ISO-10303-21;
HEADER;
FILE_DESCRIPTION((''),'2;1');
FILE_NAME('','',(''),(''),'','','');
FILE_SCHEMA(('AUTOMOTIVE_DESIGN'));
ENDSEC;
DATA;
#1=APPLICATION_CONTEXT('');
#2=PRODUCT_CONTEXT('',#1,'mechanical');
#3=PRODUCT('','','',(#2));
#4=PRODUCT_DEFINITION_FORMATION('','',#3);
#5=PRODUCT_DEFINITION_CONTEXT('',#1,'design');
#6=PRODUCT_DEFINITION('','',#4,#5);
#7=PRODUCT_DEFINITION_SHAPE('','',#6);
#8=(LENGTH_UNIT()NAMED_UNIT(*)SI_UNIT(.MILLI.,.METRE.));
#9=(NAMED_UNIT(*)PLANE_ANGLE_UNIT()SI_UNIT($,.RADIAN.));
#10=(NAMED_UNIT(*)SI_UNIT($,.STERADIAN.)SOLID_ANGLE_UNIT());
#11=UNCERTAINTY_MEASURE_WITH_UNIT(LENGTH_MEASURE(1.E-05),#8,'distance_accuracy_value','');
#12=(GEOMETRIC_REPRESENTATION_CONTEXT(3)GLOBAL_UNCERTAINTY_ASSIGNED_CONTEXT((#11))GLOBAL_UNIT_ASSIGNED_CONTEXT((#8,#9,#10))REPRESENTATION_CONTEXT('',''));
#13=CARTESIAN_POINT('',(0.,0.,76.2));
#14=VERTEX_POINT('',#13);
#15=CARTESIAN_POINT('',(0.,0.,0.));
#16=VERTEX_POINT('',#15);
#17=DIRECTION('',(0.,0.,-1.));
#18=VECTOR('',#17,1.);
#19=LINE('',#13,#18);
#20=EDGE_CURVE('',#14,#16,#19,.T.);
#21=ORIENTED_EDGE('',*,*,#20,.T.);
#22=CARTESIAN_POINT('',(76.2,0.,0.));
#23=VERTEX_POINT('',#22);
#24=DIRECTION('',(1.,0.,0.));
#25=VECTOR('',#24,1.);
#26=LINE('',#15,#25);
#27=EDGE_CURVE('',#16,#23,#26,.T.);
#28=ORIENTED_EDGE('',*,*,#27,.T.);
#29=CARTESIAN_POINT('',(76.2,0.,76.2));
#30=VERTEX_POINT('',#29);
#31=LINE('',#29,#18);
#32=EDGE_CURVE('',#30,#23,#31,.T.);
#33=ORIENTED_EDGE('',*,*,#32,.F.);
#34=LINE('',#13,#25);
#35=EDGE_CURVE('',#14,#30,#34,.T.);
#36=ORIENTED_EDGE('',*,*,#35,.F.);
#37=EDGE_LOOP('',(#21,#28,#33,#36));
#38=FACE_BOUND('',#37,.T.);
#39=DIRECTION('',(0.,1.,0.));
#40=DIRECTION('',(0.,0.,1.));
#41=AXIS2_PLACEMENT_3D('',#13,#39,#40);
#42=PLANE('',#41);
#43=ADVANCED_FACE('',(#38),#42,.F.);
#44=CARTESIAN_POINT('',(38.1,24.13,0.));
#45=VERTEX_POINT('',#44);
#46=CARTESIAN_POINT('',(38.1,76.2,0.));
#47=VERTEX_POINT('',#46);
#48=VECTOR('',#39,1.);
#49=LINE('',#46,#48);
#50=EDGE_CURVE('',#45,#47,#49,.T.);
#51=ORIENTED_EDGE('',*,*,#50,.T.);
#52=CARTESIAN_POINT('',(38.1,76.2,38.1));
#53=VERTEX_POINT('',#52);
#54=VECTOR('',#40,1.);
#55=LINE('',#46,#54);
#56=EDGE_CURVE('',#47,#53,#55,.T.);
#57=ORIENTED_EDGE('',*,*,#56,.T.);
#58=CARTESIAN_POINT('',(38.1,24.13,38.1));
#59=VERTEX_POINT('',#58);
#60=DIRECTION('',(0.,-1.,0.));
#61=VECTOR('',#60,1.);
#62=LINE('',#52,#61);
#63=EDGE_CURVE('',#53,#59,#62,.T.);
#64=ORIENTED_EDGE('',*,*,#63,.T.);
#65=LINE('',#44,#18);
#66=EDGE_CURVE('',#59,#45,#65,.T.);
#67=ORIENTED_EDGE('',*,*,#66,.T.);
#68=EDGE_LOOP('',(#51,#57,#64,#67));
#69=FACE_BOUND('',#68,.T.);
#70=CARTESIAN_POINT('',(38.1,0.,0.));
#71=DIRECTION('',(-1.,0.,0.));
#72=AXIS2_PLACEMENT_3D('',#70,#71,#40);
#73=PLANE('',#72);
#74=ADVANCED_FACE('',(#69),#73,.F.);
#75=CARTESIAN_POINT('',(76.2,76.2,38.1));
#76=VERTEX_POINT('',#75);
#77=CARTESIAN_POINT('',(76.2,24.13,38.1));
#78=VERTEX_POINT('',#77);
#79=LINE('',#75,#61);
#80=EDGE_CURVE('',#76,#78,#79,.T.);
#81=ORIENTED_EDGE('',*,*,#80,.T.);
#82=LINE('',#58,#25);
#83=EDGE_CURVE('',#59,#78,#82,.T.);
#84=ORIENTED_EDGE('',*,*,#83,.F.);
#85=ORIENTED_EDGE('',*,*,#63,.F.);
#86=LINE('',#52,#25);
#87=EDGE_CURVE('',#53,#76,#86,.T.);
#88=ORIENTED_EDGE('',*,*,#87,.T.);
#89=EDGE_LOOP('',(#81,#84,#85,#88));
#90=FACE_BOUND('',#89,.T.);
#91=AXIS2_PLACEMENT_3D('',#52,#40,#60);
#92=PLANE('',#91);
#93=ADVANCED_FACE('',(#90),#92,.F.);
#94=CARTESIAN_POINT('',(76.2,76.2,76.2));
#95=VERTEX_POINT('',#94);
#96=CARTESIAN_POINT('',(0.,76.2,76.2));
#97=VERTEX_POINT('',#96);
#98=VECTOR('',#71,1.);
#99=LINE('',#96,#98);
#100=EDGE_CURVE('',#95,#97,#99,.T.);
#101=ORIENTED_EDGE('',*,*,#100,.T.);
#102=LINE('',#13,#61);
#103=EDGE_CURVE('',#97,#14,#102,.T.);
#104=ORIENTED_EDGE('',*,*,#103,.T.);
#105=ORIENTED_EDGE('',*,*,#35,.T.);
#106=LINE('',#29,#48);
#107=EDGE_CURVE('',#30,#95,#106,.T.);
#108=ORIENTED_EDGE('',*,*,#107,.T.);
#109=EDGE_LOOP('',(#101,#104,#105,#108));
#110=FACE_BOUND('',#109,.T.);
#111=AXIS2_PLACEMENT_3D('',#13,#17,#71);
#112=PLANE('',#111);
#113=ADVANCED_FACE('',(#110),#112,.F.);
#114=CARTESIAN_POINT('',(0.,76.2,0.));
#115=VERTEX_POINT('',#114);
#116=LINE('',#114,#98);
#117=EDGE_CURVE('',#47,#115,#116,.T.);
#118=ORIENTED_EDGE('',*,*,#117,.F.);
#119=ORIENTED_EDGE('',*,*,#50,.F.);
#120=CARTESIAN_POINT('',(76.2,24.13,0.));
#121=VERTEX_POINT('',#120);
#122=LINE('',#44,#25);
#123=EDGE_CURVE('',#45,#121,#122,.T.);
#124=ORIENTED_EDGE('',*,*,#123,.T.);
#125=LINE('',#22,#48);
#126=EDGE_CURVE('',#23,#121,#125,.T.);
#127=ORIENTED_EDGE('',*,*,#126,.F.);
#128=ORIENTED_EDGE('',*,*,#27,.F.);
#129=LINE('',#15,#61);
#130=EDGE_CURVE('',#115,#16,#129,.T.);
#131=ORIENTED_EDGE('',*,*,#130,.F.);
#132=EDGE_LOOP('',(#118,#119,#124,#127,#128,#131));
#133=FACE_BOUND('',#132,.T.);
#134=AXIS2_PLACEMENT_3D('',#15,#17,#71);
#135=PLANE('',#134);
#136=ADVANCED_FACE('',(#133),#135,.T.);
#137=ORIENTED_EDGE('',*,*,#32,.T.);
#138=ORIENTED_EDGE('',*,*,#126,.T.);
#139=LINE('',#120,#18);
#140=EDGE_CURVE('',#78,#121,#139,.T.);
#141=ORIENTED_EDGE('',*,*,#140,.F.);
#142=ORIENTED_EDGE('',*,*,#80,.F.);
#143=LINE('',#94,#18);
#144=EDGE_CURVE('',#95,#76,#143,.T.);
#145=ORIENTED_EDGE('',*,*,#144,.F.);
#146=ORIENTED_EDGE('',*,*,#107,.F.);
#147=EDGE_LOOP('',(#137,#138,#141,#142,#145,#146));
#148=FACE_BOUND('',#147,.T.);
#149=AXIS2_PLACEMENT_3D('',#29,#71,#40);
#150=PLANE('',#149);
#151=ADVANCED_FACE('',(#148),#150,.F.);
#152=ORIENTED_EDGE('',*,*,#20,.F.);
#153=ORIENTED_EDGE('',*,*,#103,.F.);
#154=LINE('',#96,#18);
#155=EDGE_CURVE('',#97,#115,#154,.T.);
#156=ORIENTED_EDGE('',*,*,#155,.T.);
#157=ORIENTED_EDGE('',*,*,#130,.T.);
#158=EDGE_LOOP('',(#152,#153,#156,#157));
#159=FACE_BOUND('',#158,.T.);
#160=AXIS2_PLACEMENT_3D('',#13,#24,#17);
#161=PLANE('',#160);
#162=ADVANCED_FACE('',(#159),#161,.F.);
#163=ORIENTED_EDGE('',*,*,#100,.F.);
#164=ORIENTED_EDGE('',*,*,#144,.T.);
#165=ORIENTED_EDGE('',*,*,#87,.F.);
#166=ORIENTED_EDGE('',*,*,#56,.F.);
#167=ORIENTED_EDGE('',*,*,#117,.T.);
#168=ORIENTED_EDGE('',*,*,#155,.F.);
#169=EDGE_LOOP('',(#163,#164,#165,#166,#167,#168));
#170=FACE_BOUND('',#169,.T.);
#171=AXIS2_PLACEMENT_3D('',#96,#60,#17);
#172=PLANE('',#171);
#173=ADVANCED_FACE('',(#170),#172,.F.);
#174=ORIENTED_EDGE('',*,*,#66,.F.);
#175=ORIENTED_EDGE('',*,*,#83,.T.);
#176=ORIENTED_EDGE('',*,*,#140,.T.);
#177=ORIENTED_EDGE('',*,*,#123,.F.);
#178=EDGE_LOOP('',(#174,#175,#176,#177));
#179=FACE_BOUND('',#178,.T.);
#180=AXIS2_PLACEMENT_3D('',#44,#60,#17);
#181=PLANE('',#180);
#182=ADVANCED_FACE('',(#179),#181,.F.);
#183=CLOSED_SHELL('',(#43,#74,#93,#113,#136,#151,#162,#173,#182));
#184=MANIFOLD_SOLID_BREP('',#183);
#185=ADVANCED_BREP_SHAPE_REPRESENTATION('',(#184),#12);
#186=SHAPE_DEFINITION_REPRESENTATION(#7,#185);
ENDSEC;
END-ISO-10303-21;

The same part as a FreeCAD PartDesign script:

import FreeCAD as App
import Part
import Sketcher
Q = App.Units.Quantity

doc = App.newDocument("Part")
body = doc.addObject("PartDesign::Body", "Body")

# Sketch on XY plane
sketch1 = body.newObject("Sketcher::SketchObject", "Sketch")
sketch1.AttachmentSupport = (doc.getObject("XY_Plane"), [""])
sketch1.MapMode = "FlatFace"
sketch1.addGeometry(Part.LineSegment(App.Vector(0, 76, 0), App.Vector(0, 0, 0)), False)
sketch1.addGeometry(Part.LineSegment(App.Vector(0, 0, 0), App.Vector(76, 0, 0)), False)
sketch1.addGeometry(Part.LineSegment(App.Vector(76, 0, 0), App.Vector(76, 76, 0)), False)
sketch1.addGeometry(Part.LineSegment(App.Vector(76, 76, 0), App.Vector(0, 76, 0)), False)
sketch1.addConstraint(Sketcher.Constraint("Coincident", 0, 2, 1, 1))
sketch1.addConstraint(Sketcher.Constraint("Coincident", 1, 2, 2, 1))
sketch1.addConstraint(Sketcher.Constraint("Coincident", 2, 2, 3, 1))
sketch1.addConstraint(Sketcher.Constraint("Coincident", 3, 2, 0, 1))
sketch1.addConstraint(Sketcher.Constraint("Vertical", 0))
sketch1.addConstraint(Sketcher.Constraint("Horizontal", 1))
sketch1.addConstraint(Sketcher.Constraint("Vertical", 2))
sketch1.addConstraint(Sketcher.Constraint("Horizontal", 3))
sketch1.addConstraint(Sketcher.Constraint("Coincident", 0, 2, -1, 1))
sketch1.addConstraint(Sketcher.Constraint("Equal", 3, 0))
sketch1.addConstraint(Sketcher.Constraint("DistanceX", 1, 1, 1, 2, Q("3 in")))
pad1 = body.newObject("PartDesign::Pad", "Pad")
pad1.Profile = sketch1
pad1.Length = Q("3 in")

# Sketch on YZ plane
sketch2 = body.newObject("Sketcher::SketchObject", "Sketch001")
sketch2.AttachmentSupport = (doc.getObject("YZ_Plane"), [""])
sketch2.MapMode = "FlatFace"
sketch2.AttachmentOffset = App.Placement(App.Vector(0, 0, 3 * 25.4), App.Rotation())
sketch2.addGeometry(Part.LineSegment(App.Vector(76, 38, 0), App.Vector(24, 38, 0)), False)
sketch2.addGeometry(Part.LineSegment(App.Vector(24, 38, 0), App.Vector(24, 0, 0)), False)
sketch2.addGeometry(Part.LineSegment(App.Vector(24, 0, 0), App.Vector(76, 0, 0)), False)
sketch2.addGeometry(Part.LineSegment(App.Vector(76, 0, 0), App.Vector(76, 38, 0)), False)
sketch2.addConstraint(Sketcher.Constraint("Coincident", 0, 2, 1, 1))
sketch2.addConstraint(Sketcher.Constraint("Coincident", 1, 2, 2, 1))
sketch2.addConstraint(Sketcher.Constraint("Coincident", 2, 2, 3, 1))
sketch2.addConstraint(Sketcher.Constraint("Coincident", 3, 2, 0, 1))
sketch2.addConstraint(Sketcher.Constraint("Horizontal", 0))
sketch2.addConstraint(Sketcher.Constraint("Vertical", 1))
sketch2.addConstraint(Sketcher.Constraint("Horizontal", 2))
sketch2.addConstraint(Sketcher.Constraint("Vertical", 3))
sketch2.addConstraint(Sketcher.Constraint("PointOnObject", 1, 2, -1))
sketch2.addConstraint(Sketcher.Constraint("DistanceY", 1, 2, 1, 1, Q("1.5 in")))
sketch2.addConstraint(Sketcher.Constraint("DistanceX", -1, 1, 2, 2, Q("3 in")))
sketch2.addConstraint(Sketcher.Constraint("DistanceX", 0, 2, 0, 1, Q("2.05 in")))
pocket1 = body.newObject("PartDesign::Pocket", "Pocket")
pocket1.Profile = sketch2
pocket1.Length = Q("1.5 in")

doc.recompute()
